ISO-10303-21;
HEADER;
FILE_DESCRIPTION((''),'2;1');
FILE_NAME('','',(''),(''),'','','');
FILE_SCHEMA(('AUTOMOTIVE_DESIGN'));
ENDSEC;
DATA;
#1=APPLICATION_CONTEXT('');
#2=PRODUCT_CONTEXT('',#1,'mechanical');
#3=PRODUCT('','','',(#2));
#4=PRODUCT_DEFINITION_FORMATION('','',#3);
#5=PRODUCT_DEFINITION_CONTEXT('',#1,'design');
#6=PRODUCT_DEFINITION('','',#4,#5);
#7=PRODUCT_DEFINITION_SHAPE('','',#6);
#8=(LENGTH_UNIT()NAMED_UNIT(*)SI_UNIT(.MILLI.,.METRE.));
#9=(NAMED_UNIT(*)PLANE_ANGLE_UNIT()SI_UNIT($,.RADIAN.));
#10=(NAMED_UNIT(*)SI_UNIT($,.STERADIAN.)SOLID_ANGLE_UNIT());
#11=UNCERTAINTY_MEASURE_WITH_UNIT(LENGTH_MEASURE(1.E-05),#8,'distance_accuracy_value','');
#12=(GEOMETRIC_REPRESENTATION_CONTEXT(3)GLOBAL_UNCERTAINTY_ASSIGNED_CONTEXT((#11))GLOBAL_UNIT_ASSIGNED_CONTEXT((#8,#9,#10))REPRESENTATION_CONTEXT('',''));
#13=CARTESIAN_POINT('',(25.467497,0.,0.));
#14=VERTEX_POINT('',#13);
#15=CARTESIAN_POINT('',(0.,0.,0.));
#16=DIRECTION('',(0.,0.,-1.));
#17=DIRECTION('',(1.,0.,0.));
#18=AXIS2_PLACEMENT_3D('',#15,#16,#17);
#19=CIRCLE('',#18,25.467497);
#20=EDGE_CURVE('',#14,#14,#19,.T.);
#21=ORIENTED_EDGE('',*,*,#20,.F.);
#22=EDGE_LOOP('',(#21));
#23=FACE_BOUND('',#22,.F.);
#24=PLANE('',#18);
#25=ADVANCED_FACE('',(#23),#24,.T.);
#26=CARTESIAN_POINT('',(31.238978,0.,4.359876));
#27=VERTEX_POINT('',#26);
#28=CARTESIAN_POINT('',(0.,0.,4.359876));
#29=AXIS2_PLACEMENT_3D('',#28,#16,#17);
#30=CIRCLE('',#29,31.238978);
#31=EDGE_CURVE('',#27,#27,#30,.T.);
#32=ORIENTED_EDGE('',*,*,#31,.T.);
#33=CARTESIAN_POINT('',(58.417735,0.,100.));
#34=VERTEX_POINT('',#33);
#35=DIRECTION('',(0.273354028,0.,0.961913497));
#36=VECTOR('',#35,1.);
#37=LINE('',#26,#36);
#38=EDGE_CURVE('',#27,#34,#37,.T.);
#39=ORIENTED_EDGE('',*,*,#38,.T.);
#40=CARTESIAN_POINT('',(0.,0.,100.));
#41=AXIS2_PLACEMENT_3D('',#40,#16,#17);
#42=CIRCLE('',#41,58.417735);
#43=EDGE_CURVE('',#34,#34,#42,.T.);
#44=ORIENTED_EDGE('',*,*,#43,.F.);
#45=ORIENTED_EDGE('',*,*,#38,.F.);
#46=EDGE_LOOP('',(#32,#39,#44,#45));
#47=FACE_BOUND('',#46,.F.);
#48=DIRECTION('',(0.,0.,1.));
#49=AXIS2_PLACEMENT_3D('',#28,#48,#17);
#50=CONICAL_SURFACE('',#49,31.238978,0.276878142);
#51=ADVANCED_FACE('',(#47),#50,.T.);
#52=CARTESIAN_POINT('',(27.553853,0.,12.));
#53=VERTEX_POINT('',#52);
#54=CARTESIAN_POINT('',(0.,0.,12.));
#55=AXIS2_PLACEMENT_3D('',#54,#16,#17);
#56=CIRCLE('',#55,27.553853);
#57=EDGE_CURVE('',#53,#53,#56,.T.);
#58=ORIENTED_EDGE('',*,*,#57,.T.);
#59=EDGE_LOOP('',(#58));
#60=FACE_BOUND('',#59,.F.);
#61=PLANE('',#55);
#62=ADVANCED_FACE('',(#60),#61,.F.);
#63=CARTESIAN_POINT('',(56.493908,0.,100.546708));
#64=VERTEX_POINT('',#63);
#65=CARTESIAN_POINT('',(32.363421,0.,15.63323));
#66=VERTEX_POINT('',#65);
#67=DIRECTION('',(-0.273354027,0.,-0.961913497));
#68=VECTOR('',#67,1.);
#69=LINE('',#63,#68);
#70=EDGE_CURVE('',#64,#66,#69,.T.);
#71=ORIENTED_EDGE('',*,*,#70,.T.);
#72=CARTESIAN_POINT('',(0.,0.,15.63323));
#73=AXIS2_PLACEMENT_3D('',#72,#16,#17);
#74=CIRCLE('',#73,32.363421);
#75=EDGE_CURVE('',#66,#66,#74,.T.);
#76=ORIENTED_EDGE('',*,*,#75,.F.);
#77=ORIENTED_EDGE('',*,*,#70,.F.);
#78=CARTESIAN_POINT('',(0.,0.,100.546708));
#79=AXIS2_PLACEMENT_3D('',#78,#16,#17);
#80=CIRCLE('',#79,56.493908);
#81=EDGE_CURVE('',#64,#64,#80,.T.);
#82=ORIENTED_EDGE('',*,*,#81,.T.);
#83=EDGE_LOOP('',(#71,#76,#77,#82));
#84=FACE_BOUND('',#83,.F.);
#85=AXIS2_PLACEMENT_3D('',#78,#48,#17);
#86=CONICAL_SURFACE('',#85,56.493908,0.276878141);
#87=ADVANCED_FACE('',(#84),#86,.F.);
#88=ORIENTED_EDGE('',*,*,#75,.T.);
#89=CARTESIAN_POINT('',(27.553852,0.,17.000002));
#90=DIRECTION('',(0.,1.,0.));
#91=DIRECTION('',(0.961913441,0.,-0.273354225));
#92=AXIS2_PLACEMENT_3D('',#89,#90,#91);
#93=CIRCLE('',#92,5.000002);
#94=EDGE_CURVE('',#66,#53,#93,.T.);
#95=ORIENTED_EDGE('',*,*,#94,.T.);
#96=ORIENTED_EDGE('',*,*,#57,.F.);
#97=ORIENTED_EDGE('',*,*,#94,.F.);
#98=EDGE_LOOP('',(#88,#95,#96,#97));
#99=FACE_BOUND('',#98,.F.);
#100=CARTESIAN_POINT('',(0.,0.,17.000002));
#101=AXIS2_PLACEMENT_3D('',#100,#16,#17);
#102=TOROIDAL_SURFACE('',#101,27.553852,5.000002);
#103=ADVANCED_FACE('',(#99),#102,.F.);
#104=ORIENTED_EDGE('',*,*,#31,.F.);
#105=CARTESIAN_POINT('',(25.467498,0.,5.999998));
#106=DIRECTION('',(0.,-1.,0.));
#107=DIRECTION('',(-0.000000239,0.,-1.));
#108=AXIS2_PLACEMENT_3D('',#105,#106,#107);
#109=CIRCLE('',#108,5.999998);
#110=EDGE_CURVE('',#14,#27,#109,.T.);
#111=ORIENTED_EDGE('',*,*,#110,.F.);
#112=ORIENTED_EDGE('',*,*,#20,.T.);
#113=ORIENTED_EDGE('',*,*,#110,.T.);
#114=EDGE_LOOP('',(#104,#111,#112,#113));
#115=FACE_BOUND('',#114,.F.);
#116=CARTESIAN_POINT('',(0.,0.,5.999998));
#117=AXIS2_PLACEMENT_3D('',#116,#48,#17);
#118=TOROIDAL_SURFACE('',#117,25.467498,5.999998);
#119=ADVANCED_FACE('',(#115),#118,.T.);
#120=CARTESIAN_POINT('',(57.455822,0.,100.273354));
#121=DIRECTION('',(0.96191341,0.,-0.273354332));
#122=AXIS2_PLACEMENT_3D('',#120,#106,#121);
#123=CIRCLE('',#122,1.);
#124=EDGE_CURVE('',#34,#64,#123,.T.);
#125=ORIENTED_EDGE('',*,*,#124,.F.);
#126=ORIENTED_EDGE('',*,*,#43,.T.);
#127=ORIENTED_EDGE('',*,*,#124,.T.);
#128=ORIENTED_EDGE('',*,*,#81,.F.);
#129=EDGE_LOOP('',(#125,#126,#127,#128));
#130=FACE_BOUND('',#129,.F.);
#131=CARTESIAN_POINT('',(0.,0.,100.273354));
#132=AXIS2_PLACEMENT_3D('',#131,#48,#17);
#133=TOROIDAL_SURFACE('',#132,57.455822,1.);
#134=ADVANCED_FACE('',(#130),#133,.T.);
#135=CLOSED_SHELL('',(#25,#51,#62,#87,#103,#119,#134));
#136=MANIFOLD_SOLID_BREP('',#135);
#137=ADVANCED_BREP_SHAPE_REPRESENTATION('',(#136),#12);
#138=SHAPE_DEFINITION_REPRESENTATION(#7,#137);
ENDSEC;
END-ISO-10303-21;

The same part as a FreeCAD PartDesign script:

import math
import FreeCAD as App
import Part
import Sketcher

V = App.Vector

doc = App.newDocument("Part")
params = doc.addObject("Spreadsheet::Sheet", "Params")
for row, (alias, value) in enumerate([
    ("sketch1_radius", "5.999998 mm"),
    ("sketch1_radius2", "1 mm"),
    ("sketch1_radius3", "5.000002 mm"),
    ("sketch1_height", "12 mm"),
    ("revolution_angle", "360 deg"),
], start=1):
    params.set(f"A{row}", alias)
    params.set(f"B{row}", "=" + value)
    params.setAlias(f"B{row}", alias)

body = doc.addObject("PartDesign::Body", "Body")

sketch1 = body.newObject("Sketcher::SketchObject", "Sketch")
sketch1.AttachmentSupport = (doc.getObject("XZ_Plane"), [""])
sketch1.MapMode = "FlatFace"
sketch1.addGeometry([
    Part.LineSegment(V(0, 12, 0), V(0, 0, 0)),
    Part.LineSegment(V(0, 0, 0), V(25.467497, 0, 0)),
    Part.ArcOfCircle(Part.Circle(V(25.467498, 5.999998, 0), V(0, 0, 1), 5.999998), math.radians(-90.000014), math.radians(-15.863933)),
    Part.LineSegment(V(31.238978, 4.359876, 0), V(58.417735, 100, 0)),
    Part.ArcOfCircle(Part.Circle(V(57.455822, 100.273354, 0), V(0, 0, 1), 1), math.radians(-15.863967), math.radians(164.136072)),
    Part.LineSegment(V(56.493908, 100.546708, 0), V(32.363421, 15.63323, 0)),
    Part.ArcOfCircle(Part.Circle(V(27.553852, 17.000002, 0), V(0, 0, 1), 5.000002), math.radians(-89.999992), math.radians(-15.863961)),
    Part.LineSegment(V(27.553853, 12, 0), V(0, 12, 0)),
], False)
sketch1.addConstraint([
    Sketcher.Constraint("Coincident", 0, 2, 1, 1),
    Sketcher.Constraint("Tangent", 1, 2, 2, 1),
    Sketcher.Constraint("Tangent", 2, 2, 3, 1),
    Sketcher.Constraint("Tangent", 3, 2, 4, 1),
    Sketcher.Constraint("Tangent", 4, 2, 5, 1),
    Sketcher.Constraint("Tangent", 5, 2, 6, 2),
    Sketcher.Constraint("Tangent", 6, 1, 7, 1),
    Sketcher.Constraint("Coincident", 7, 2, 0, 1),
    Sketcher.Constraint("Vertical", 0),
    Sketcher.Constraint("Horizontal", 1),
    Sketcher.Constraint("Horizontal", 7),
    Sketcher.Constraint("Coincident", 0, 2, -1, 1),
    Sketcher.Constraint("Parallel", 3, 5),
    Sketcher.Constraint("Radius", 2, 5.999998),
    Sketcher.Constraint("Radius", 4, 1.0),
    Sketcher.Constraint("Radius", 6, 5.000002),
    Sketcher.Constraint("DistanceY", 0, 2, 0, 1, 12.0),
    Sketcher.Constraint("DistanceY", -1, 1, 3, 2, 100.0),
    Sketcher.Constraint("DistanceX", -1, 1, 2, 3, 25.467498),
    Sketcher.Constraint("Distance", 3, 99.426949),
])
sketch1.setExpression("Constraints[13]", "Params.sketch1_radius")
sketch1.setExpression("Constraints[14]", "Params.sketch1_radius2")
sketch1.setExpression("Constraints[15]", "Params.sketch1_radius3")
sketch1.setExpression("Constraints[16]", "Params.sketch1_height")
revolution = body.newObject("PartDesign::Revolution", "Revolution")
revolution.Profile = sketch1
revolution.ReferenceAxis = (sketch1, ["V_Axis"])
revolution.setExpression("Angle", "Params.revolution_angle")

doc.recompute()
